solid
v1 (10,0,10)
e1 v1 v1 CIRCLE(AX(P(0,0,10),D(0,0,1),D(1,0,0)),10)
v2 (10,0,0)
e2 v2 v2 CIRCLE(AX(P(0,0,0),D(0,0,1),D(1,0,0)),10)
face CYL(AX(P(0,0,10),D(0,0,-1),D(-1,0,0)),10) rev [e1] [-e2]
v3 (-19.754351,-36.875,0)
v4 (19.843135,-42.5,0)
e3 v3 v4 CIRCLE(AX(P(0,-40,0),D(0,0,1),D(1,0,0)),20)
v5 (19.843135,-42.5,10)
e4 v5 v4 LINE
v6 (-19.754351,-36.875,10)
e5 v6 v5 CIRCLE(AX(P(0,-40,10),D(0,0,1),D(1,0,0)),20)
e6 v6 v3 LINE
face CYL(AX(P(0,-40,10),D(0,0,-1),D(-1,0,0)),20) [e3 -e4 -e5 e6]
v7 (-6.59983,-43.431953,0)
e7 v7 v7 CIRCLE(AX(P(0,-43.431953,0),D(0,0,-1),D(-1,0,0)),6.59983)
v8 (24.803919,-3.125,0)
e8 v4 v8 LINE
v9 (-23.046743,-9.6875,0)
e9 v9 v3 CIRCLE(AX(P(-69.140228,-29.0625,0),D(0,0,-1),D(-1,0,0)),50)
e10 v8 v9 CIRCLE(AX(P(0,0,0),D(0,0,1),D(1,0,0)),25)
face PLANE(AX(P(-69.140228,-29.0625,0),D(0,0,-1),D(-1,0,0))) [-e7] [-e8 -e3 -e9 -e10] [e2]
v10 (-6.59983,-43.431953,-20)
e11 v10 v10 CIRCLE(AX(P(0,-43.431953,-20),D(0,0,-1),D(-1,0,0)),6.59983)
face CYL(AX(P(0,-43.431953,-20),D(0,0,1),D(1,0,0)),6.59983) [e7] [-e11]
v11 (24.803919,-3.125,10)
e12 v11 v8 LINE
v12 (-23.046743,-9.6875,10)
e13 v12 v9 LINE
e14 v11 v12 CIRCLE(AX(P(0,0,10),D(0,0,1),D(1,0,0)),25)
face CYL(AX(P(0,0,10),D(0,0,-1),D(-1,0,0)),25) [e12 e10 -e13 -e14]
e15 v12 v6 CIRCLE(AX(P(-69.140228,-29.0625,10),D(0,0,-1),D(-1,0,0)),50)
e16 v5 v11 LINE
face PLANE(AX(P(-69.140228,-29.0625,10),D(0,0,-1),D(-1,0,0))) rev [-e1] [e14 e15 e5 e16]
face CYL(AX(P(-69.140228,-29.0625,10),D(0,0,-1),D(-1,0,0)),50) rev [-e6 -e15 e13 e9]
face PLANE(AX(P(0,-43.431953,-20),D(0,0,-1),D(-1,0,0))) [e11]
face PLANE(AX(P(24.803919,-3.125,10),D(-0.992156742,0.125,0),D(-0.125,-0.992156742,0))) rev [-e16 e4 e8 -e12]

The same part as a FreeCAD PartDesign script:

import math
import FreeCAD as App
import Part
import Sketcher
Q = App.Units.Quantity

doc = App.newDocument("Part")
body = doc.addObject("PartDesign::Body", "Body")

sketch1 = body.newObject("Sketcher::SketchObject", "Sketch")
sketch1.AttachmentSupport = (doc.getObject("XY_Plane"), [""])
sketch1.MapMode = "FlatFace"
sketch1.addGeometry([
    Part.LineSegment(App.Vector(19.843135, -42.5, 0), App.Vector(24.803919, -3.125, 0)),
    Part.ArcOfCircle(Part.Circle(App.Vector(0, 0, 0), App.Vector(0, 0, 1), 25), math.radians(-7.180756), math.radians(202.799031)),
    Part.ArcOfCircle(Part.Circle(App.Vector(-69.140228, -29.0625, 0), App.Vector(0, 0, 1), 50), math.radians(-8.989299), math.radians(22.799031)),
    Part.ArcOfCircle(Part.Circle(App.Vector(0, -40, 0), App.Vector(0, 0, 1), 20), math.radians(171.010701), math.radians(352.819244)),
    Part.Circle(App.Vector(0, 0, 0), App.Vector(0, 0, 1), 10),
], False)
sketch1.addConstraint([
    Sketcher.Constraint("Tangent", 0, 2, 1, 1),
    Sketcher.Constraint("Tangent", 1, 2, 2, 2),
    Sketcher.Constraint("Tangent", 2, 1, 3, 1),
    Sketcher.Constraint("Tangent", 3, 2, 0, 1),
    Sketcher.Constraint("Coincident", 1, 3, -1, 1),
    Sketcher.Constraint("Coincident", 4, 3, -1, 1),
    Sketcher.Constraint("PointOnObject", 3, 3, -2),
    Sketcher.Constraint("Diameter", 4, Q("20 mm")),
    Sketcher.Constraint("Radius", 1, Q("25 mm")),
    Sketcher.Constraint("Radius", 2, Q("50 mm")),
    Sketcher.Constraint("Radius", 3, Q("20 mm")),
    Sketcher.Constraint("DistanceY", 3, 3, -1, 1, Q("40 mm")),
])
pad1 = body.newObject("PartDesign::Pad", "Pad")
pad1.Profile = sketch1
pad1.Length = 10

sketch2 = body.newObject("Sketcher::SketchObject", "Sketch001")
sketch2.AttachmentSupport = (doc.getObject("XY_Plane"), [""])
sketch2.MapMode = "FlatFace"
sketch2.addGeometry(Part.Circle(App.Vector(0, -43.431953, 0), App.Vector(0, 0, 1), 6.59983), False)
sketch2.addConstraint([
    Sketcher.Constraint("PointOnObject", 0, 3, -2),
    Sketcher.Constraint("Diameter", 0, Q("13.19966 mm")),
    Sketcher.Constraint("DistanceY", 0, 3, -1, 1, Q("43.431953 mm")),
])
pad2 = body.newObject("PartDesign::Pad", "Pad001")
pad2.Profile = sketch2
pad2.Length = 20
pad2.Reversed = True

doc.recompute()
